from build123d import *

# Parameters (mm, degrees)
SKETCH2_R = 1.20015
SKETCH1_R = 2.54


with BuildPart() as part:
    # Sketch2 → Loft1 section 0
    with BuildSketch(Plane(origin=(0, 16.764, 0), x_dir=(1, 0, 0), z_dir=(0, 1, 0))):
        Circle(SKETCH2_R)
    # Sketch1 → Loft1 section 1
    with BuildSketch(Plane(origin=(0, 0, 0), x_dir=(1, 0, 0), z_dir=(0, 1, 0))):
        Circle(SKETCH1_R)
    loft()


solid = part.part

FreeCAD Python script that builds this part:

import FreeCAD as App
import Part
import Sketcher
Q = App.Units.Quantity

doc = App.newDocument("Part")
body = doc.addObject("PartDesign::Body", "Body")

# Sketch on XZ plane
sketch1 = body.newObject("Sketcher::SketchObject", "Sketch")
sketch1.AttachmentSupport = (doc.getObject("XZ_Plane"), [""])
sketch1.MapMode = "FlatFace"
sketch1.AttachmentOffset = App.Placement(App.Vector(0, 0, -0.66 * 25.4), App.Rotation())
sketch1.addGeometry(Part.Circle(App.Vector(0, 0, 0), App.Vector(0, 0, 1), 1.2), False)
sketch1.addConstraint([
    Sketcher.Constraint("Coincident", 0, 3, -1, 1),
    Sketcher.Constraint("Diameter", 0, Q("0.0945 in")),
])

# Sketch on XZ plane
sketch2 = body.newObject("Sketcher::SketchObject", "Sketch001")
sketch2.AttachmentSupport = (doc.getObject("XZ_Plane"), [""])
sketch2.MapMode = "FlatFace"
sketch2.addGeometry(Part.Circle(App.Vector(0, 0, 0), App.Vector(0, 0, 1), 2.5), False)
sketch2.addConstraint([
    Sketcher.Constraint("Coincident", 0, 3, -1, 1),
    Sketcher.Constraint("Diameter", 0, Q("0.2 in")),
])

additiveloft = body.newObject("PartDesign::AdditiveLoft", "AdditiveLoft")
additiveloft.Profile = sketch1
additiveloft.Sections = [sketch2]

doc.recompute()
